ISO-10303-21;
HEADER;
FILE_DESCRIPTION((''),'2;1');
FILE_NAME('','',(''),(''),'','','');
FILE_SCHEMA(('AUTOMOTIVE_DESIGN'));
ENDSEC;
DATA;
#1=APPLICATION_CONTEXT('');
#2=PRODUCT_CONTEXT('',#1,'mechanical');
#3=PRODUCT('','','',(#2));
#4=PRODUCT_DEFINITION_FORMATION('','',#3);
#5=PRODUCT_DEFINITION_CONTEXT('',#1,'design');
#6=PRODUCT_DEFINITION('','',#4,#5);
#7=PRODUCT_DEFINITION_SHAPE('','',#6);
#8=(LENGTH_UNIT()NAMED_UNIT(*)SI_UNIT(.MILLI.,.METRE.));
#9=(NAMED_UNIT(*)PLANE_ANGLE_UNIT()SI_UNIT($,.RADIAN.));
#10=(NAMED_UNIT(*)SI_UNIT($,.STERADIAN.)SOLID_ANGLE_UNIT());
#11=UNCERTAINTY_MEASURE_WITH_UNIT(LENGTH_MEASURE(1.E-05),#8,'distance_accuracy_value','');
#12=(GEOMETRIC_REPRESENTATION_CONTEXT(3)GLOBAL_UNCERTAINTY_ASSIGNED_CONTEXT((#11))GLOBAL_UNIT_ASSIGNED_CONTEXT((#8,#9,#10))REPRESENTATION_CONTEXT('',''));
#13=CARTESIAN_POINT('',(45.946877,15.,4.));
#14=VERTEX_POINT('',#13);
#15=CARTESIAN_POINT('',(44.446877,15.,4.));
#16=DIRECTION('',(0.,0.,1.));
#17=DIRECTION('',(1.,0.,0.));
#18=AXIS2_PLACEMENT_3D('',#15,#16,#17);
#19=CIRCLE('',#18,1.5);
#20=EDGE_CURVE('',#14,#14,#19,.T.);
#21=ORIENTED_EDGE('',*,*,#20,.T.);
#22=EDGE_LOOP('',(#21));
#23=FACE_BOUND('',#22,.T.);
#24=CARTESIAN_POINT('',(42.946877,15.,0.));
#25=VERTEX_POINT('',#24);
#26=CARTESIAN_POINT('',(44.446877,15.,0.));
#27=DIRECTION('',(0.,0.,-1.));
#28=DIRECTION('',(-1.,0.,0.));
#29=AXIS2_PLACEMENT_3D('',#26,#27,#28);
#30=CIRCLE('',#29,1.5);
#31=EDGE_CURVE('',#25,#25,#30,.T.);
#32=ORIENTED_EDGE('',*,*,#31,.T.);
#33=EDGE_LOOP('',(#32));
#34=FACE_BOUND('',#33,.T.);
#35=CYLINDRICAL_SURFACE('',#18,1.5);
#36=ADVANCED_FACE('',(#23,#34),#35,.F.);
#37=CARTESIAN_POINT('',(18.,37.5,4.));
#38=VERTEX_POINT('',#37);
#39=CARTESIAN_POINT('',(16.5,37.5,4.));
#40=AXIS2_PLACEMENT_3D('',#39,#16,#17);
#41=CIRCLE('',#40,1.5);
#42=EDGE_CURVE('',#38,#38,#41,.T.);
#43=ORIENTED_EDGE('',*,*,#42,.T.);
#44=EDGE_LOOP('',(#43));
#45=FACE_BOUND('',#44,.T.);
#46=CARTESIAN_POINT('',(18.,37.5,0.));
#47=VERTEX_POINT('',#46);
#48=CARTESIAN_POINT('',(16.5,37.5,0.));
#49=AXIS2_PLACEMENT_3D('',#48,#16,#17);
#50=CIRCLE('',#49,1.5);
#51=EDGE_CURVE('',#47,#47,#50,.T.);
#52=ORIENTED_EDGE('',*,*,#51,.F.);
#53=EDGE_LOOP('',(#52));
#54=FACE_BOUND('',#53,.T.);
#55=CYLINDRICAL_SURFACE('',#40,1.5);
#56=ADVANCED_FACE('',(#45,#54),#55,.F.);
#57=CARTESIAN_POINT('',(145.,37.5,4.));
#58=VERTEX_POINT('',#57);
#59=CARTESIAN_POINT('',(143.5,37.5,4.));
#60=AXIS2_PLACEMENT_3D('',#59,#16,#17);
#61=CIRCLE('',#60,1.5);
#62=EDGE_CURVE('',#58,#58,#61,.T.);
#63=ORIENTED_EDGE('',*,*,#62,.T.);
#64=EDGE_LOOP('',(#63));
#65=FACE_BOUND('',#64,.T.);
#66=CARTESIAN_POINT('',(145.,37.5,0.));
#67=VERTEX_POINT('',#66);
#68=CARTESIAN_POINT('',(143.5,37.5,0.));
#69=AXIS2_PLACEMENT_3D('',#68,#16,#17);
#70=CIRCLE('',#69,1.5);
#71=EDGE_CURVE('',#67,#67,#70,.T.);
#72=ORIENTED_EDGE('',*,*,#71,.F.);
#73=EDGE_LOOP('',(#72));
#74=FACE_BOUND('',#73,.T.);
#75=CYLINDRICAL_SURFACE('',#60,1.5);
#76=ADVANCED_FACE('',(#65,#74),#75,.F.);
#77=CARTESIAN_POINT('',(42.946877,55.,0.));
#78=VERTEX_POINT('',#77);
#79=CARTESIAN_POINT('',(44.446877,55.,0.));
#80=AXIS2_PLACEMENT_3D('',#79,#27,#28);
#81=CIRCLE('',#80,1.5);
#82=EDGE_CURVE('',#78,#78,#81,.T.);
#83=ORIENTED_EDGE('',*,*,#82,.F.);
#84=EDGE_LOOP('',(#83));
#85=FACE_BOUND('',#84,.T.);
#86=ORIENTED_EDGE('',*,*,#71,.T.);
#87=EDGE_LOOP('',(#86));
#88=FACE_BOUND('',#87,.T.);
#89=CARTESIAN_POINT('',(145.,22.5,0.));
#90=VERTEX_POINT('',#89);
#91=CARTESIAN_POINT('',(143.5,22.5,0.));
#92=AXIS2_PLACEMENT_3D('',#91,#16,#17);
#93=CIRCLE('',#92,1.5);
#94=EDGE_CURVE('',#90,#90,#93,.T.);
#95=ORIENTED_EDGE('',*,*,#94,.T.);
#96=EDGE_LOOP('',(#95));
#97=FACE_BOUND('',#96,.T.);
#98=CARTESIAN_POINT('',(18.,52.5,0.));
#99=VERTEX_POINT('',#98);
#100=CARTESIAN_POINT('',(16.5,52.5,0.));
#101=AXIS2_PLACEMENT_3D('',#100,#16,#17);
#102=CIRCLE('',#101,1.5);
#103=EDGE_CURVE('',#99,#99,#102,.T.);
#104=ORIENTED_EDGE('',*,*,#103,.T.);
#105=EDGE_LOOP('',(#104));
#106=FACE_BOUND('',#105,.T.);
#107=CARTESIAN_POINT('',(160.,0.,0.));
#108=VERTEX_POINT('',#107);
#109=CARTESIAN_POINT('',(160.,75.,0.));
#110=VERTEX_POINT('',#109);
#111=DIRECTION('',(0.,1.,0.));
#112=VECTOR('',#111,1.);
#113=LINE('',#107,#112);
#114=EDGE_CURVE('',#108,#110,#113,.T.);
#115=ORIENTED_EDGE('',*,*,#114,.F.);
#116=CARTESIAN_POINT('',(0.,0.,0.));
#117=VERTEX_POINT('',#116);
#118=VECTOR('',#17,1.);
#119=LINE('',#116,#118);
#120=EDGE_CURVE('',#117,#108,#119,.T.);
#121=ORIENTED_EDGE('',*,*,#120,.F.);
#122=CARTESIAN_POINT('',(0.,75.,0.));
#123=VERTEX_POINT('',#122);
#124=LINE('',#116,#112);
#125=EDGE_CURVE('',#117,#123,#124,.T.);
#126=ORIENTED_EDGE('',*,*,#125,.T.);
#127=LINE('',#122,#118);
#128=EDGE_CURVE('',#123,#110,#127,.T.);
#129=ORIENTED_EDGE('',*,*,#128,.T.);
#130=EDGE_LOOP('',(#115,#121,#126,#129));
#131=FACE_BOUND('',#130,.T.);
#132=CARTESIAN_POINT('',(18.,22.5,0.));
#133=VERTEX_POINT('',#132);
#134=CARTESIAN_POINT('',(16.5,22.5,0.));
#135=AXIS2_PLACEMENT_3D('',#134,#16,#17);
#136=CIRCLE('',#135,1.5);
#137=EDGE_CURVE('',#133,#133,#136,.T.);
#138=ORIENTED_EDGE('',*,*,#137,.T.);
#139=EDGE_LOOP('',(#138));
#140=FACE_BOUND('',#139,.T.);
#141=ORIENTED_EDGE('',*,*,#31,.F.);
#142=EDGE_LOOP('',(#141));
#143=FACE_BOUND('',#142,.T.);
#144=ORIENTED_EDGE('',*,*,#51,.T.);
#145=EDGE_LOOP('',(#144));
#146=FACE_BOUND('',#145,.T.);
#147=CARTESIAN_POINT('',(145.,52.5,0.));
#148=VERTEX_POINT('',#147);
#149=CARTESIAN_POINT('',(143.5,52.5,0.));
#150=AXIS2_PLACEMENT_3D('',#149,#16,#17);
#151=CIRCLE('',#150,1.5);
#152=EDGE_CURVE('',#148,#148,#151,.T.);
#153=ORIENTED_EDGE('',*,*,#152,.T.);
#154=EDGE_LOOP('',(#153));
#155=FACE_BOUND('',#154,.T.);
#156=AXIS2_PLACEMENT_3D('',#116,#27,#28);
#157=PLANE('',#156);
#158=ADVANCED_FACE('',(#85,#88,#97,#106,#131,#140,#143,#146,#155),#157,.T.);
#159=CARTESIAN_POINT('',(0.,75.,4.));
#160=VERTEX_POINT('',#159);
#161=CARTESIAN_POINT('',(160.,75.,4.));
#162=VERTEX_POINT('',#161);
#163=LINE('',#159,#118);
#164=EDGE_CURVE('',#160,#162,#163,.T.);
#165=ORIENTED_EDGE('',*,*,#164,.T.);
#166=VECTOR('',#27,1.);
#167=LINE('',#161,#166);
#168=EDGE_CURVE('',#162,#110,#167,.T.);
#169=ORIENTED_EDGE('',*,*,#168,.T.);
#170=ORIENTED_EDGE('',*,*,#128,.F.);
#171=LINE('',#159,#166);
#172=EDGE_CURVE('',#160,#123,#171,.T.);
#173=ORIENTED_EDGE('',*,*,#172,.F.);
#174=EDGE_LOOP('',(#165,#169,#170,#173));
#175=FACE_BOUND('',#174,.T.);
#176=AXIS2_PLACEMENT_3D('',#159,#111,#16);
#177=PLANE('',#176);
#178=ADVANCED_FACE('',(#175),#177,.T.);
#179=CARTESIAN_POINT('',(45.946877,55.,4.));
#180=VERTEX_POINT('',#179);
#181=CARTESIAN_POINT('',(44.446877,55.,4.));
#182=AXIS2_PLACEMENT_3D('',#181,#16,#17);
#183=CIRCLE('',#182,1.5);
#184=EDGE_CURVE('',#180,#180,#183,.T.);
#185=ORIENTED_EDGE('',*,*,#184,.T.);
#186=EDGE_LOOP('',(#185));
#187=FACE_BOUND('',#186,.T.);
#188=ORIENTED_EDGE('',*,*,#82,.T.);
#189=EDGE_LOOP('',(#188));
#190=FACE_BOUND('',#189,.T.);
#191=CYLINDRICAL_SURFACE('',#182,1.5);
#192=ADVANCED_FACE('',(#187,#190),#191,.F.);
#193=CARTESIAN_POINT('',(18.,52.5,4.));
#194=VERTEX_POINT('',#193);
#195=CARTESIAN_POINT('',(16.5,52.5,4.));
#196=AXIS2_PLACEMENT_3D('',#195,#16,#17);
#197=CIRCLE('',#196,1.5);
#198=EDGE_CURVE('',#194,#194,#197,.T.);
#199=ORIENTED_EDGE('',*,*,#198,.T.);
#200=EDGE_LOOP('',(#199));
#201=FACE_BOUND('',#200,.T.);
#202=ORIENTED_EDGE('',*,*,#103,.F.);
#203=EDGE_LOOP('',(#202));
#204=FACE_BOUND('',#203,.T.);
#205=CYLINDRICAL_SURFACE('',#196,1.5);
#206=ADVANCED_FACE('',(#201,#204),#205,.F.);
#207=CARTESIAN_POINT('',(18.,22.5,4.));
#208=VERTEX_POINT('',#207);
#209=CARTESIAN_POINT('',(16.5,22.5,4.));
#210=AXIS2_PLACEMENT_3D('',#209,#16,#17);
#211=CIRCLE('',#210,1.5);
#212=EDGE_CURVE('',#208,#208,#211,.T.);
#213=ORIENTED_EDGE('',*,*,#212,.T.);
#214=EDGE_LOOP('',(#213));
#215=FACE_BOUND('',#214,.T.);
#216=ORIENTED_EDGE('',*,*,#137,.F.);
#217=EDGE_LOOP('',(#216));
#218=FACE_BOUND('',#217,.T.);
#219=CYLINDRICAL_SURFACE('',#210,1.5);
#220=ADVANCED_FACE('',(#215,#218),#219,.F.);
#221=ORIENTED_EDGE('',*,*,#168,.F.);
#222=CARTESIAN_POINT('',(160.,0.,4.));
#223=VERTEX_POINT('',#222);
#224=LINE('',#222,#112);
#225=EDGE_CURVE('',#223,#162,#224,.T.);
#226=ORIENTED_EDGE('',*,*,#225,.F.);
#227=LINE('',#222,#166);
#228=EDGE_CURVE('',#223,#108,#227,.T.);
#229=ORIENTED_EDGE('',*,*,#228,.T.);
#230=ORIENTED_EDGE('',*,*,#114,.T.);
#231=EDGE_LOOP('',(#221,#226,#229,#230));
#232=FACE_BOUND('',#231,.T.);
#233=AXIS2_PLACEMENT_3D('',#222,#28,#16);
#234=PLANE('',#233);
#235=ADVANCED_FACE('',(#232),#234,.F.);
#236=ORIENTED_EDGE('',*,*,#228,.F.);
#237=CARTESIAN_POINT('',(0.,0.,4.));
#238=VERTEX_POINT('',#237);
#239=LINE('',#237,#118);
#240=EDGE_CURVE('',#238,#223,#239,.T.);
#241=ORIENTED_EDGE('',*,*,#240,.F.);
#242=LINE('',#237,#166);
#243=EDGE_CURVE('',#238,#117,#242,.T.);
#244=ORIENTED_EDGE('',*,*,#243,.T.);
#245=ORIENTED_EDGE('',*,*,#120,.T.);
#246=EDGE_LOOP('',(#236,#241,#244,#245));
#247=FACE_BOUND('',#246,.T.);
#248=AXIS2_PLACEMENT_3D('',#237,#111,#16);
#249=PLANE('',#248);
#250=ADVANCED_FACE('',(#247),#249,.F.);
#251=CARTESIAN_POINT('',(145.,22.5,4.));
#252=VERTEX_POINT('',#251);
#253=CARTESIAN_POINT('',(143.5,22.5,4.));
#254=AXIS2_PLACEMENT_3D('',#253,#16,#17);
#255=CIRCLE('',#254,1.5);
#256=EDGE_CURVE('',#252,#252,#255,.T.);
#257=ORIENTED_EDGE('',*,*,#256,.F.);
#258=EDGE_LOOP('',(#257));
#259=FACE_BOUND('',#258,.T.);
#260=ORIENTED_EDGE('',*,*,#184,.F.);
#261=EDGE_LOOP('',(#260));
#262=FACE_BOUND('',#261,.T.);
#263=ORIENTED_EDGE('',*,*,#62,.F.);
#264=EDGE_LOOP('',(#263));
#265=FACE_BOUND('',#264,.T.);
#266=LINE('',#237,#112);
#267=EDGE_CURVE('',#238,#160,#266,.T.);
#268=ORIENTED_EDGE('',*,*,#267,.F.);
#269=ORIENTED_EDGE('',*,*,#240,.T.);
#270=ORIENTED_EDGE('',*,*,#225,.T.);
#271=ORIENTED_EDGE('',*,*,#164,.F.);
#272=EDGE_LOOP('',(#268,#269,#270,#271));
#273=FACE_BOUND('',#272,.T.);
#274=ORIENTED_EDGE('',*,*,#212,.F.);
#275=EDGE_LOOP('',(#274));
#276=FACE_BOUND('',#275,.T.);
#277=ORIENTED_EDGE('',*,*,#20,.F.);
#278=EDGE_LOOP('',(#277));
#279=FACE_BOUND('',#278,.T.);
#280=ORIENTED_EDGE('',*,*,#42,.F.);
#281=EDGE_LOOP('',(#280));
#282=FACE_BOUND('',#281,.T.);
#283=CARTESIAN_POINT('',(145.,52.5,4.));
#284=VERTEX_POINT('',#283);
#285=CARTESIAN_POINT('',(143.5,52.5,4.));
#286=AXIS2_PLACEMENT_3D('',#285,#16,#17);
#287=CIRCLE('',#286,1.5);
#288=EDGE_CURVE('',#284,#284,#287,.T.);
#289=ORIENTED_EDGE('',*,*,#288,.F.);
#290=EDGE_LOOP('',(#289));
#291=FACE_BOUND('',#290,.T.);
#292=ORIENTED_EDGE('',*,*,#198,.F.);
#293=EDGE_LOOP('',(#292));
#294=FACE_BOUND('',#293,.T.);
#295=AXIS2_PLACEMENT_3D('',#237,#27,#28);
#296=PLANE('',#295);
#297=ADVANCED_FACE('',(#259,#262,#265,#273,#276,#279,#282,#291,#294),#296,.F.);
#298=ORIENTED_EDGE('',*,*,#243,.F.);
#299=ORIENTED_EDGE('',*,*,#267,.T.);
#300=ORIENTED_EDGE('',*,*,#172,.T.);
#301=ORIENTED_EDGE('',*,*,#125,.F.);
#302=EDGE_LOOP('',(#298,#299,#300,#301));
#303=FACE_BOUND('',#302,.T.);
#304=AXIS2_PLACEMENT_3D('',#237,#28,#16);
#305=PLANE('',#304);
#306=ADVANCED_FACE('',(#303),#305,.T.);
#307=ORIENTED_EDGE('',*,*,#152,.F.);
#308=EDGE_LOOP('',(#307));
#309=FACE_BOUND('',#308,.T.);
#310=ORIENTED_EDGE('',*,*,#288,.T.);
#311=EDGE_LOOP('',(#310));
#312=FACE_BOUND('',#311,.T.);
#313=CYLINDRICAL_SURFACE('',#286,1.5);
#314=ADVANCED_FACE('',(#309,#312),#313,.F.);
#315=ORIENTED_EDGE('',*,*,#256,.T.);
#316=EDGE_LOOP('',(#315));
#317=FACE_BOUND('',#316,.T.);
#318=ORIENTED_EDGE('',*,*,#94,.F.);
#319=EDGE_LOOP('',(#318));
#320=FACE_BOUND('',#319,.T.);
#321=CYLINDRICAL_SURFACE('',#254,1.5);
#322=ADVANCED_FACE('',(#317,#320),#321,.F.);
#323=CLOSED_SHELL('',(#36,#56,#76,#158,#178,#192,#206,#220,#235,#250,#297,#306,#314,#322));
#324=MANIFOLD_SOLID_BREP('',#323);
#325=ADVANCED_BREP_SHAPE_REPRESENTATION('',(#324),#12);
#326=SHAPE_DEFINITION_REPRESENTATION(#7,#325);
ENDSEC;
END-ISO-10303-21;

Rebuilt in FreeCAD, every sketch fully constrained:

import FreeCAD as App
import Part
import Sketcher

V = App.Vector
Q = App.Units.Quantity

doc = App.newDocument("Part")
params = doc.addObject("Spreadsheet::Sheet", "Params")
for row, (alias, value) in enumerate([
    ("sketch1_width", "160 mm"),
    ("sketch1_height", "75 mm"),
    ("pad1_length", "4 mm"),
    ("sketch2_diameter", "3 mm"),
    ("hole_diameter", "3 mm"),
    ("sketch3_diameter", "3 mm"),
    ("hole2_diameter", "3 mm"),
    ("sketch4_diameter", "3 mm"),
    ("hole3_diameter", "3 mm"),
    ("hole3_depth", "6 mm"),
], start=1):
    params.set(f"A{row}", alias)
    params.set(f"B{row}", "=" + value)
    params.setAlias(f"B{row}", alias)

body = doc.addObject("PartDesign::Body", "Body")

sketch1 = body.newObject("Sketcher::SketchObject", "Sketch")
sketch1.AttachmentSupport = (doc.getObject("XY_Plane"), [""])
sketch1.MapMode = "FlatFace"
sketch1.addGeometry([
    Part.LineSegment(V(0, 75, 0), V(0, 0, 0)),
    Part.LineSegment(V(0, 0, 0), V(160, 0, 0)),
    Part.LineSegment(V(160, 0, 0), V(160, 75, 0)),
    Part.LineSegment(V(160, 75, 0), V(0, 75, 0)),
], False)
sketch1.addConstraint([
    Sketcher.Constraint("Coincident", 0, 2, 1, 1),
    Sketcher.Constraint("Coincident", 1, 2, 2, 1),
    Sketcher.Constraint("Coincident", 2, 2, 3, 1),
    Sketcher.Constraint("Coincident", 3, 2, 0, 1),
    Sketcher.Constraint("Vertical", 0),
    Sketcher.Constraint("Horizontal", 1),
    Sketcher.Constraint("Vertical", 2),
    Sketcher.Constraint("Horizontal", 3),
    Sketcher.Constraint("Coincident", 0, 2, -1, 1),
    Sketcher.Constraint("DistanceX", 1, 1, 1, 2, Q("160 mm")),
    Sketcher.Constraint("DistanceY", 0, 2, 0, 1, Q("75 mm")),
])
sketch1.setExpression("Constraints[9]", "Params.sketch1_width")
sketch1.setExpression("Constraints[10]", "Params.sketch1_height")
pad1 = body.newObject("PartDesign::Pad", "Pad")
pad1.Profile = sketch1
pad1.setExpression("Length", "Params.pad1_length")

sketch2 = body.newObject("Sketcher::SketchObject", "Sketch001")
sketch2.AttachmentSupport = (doc.getObject("XY_Plane"), [""])
sketch2.MapMode = "FlatFace"
sketch2.AttachmentOffset = App.Placement(V(0, 0, 4), App.Rotation())
sketch2.addGeometry([
    Part.Circle(V(16.5, 52.5, 0), V(0, 0, 1), 1.5),
    Part.Circle(V(16.5, 22.5, 0), V(0, 0, 1), 1.5),
    Part.Circle(V(143.5, 52.5, 0), V(0, 0, 1), 1.5),
    Part.Circle(V(143.5, 22.5, 0), V(0, 0, 1), 1.5),
], False)
sketch2.addConstraint([
    Sketcher.Constraint("Equal", 0, 1),
    Sketcher.Constraint("Equal", 1, 2),
    Sketcher.Constraint("Equal", 2, 3),
    Sketcher.Constraint("Horizontal", 0, 3, 2, 3),
    Sketcher.Constraint("Horizontal", 1, 3, 3, 3),
    Sketcher.Constraint("Vertical", 0, 3, 1, 3),
    Sketcher.Constraint("Vertical", 2, 3, 3, 3),
    Sketcher.Constraint("Diameter", 0, Q("3 mm")),
    Sketcher.Constraint("DistanceY", 1, 3, 0, 3, Q("30 mm")),
    Sketcher.Constraint("DistanceX", 0, 3, 2, 3, Q("127 mm")),
    Sketcher.Constraint("DistanceX", -1, 1, 0, 3, Q("16.5 mm")),
    Sketcher.Constraint("DistanceY", -1, 1, 0, 3, Q("52.5 mm")),
])
sketch2.setExpression("Constraints[7]", "Params.sketch2_diameter")
doc.recompute()
hole = body.newObject("PartDesign::Hole", "Hole")
hole.Profile = sketch2
hole.ThreadType = "None"
hole.setExpression("Diameter", "Params.hole_diameter")
hole.DepthType = "ThroughAll"

sketch3 = body.newObject("Sketcher::SketchObject", "Sketch002")
sketch3.AttachmentSupport = (doc.getObject("XY_Plane"), [""])
sketch3.MapMode = "FlatFace"
sketch3.AttachmentOffset = App.Placement(V(0, 0, 4), App.Rotation())
sketch3.addGeometry([
    Part.Circle(V(16.5, 37.5, 0), V(0, 0, 1), 1.5),
    Part.Circle(V(143.5, 37.5, 0), V(0, 0, 1), 1.5),
], False)
sketch3.addConstraint([
    Sketcher.Constraint("Equal", 0, 1),
    Sketcher.Constraint("Horizontal", 0, 3, 1, 3),
    Sketcher.Constraint("Diameter", 0, Q("3 mm")),
    Sketcher.Constraint("DistanceX", 0, 3, 1, 3, Q("127 mm")),
    Sketcher.Constraint("DistanceX", -1, 1, 0, 3, Q("16.5 mm")),
    Sketcher.Constraint("DistanceY", -1, 1, 0, 3, Q("37.5 mm")),
])
sketch3.setExpression("Constraints[2]", "Params.sketch3_diameter")
doc.recompute()
hole2 = body.newObject("PartDesign::Hole", "Hole001")
hole2.Profile = sketch3
hole2.ThreadType = "None"
hole2.setExpression("Diameter", "Params.hole2_diameter")
hole2.DepthType = "ThroughAll"

sketch4 = body.newObject("Sketcher::SketchObject", "Sketch003")
sketch4.AttachmentSupport = (doc.getObject("XY_Plane"), [""])
sketch4.MapMode = "FlatFace"
sketch4.AttachmentOffset = App.Placement(V(0, 0, 4), App.Rotation())
sketch4.addGeometry([
    Part.Circle(V(44.4, 15, 0), V(0, 0, 1), 1.5),
    Part.Circle(V(44.4, 55, 0), V(0, 0, 1), 1.5),
], False)
sketch4.addConstraint([
    Sketcher.Constraint("Equal", 0, 1),
    Sketcher.Constraint("Vertical", 0, 3, 1, 3),
    Sketcher.Constraint("Diameter", 0, Q("3 mm")),
    Sketcher.Constraint("DistanceY", -1, 1, 0, 3, Q("15 mm")),
    Sketcher.Constraint("DistanceY", -1, 1, 1, 3, Q("55 mm")),
    Sketcher.Constraint("DistanceX", -1, 1, 0, 3, Q("44.446877 mm")),
])
sketch4.setExpression("Constraints[2]", "Params.sketch4_diameter")
doc.recompute()
hole3 = body.newObject("PartDesign::Hole", "Hole002")
hole3.Profile = sketch4
hole3.ThreadType = "None"
hole3.setExpression("Diameter", "Params.hole3_diameter")
hole3.DepthType = "Dimension"
hole3.setExpression("Depth", "Params.hole3_depth")
hole3.DrillPoint = "Angled"
hole3.DrillPointAngle = 118

doc.recompute()
